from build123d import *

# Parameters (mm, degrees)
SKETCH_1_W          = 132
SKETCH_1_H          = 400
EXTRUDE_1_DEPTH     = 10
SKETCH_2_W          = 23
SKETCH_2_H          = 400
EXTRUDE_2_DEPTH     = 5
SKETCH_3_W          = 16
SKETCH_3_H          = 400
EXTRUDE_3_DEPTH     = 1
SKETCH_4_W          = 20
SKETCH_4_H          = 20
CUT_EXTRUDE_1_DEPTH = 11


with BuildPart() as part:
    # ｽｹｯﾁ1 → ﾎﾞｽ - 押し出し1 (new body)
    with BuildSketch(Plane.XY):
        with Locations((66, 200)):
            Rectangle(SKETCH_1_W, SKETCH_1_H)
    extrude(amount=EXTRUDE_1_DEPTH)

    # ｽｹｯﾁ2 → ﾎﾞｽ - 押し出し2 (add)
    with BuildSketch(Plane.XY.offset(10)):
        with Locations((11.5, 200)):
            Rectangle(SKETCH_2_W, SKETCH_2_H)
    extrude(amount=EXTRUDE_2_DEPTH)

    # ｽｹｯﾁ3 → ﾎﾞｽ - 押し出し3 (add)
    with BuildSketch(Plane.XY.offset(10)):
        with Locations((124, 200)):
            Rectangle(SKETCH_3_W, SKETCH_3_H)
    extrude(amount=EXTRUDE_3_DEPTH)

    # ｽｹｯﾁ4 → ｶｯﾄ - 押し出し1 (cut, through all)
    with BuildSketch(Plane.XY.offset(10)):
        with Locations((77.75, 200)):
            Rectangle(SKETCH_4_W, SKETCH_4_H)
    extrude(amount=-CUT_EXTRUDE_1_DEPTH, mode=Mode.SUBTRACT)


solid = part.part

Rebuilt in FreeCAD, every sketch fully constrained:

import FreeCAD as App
import Part
import Sketcher
from FreeCAD import Vector
Q = App.Units.Quantity

doc = App.newDocument("Part")
body = doc.addObject("PartDesign::Body", "Body")

# Sketch on XY plane
sketch1 = body.newObject("Sketcher::SketchObject", "Sketch")
sketch1.AttachmentSupport = (doc.getObject("XY_Plane"), [""])
sketch1.MapMode = "FlatFace"
sketch1.addGeometry(Part.LineSegment(Vector(0, 400, 0), Vector(0, 0, 0)), False)
sketch1.addGeometry(Part.LineSegment(Vector(0, 0, 0), Vector(132, 0, 0)), False)
sketch1.addGeometry(Part.LineSegment(Vector(132, 0, 0), Vector(132, 400, 0)), False)
sketch1.addGeometry(Part.LineSegment(Vector(132, 400, 0), Vector(0, 400, 0)), False)
sketch1.addConstraint(Sketcher.Constraint("Coincident", 0, 2, 1, 1))
sketch1.addConstraint(Sketcher.Constraint("Coincident", 1, 2, 2, 1))
sketch1.addConstraint(Sketcher.Constraint("Coincident", 2, 2, 3, 1))
sketch1.addConstraint(Sketcher.Constraint("Coincident", 3, 2, 0, 1))
sketch1.addConstraint(Sketcher.Constraint("Vertical", 0))
sketch1.addConstraint(Sketcher.Constraint("Horizontal", 1))
sketch1.addConstraint(Sketcher.Constraint("Vertical", 2))
sketch1.addConstraint(Sketcher.Constraint("Horizontal", 3))
sketch1.addConstraint(Sketcher.Constraint("Coincident", 0, 2, -1, 1))
sketch1.addConstraint(Sketcher.Constraint("DistanceX", 1, 1, 1, 2, Q("132 mm")))
sketch1.addConstraint(Sketcher.Constraint("DistanceY", 0, 2, 0, 1, Q("400 mm")))
pad1 = body.newObject("PartDesign::Pad", "Pad")
pad1.Profile = sketch1
pad1.Length = 10

# Sketch on XY plane
sketch2 = body.newObject("Sketcher::SketchObject", "Sketch001")
sketch2.AttachmentSupport = (doc.getObject("XY_Plane"), [""])
sketch2.MapMode = "FlatFace"
sketch2.AttachmentOffset = App.Placement(Vector(0, 0, 10), App.Rotation())
sketch2.addGeometry(Part.LineSegment(Vector(0, 400, 0), Vector(0, 0, 0)), False)
sketch2.addGeometry(Part.LineSegment(Vector(0, 0, 0), Vector(23, 0, 0)), False)
sketch2.addGeometry(Part.LineSegment(Vector(23, 0, 0), Vector(23, 400, 0)), False)
sketch2.addGeometry(Part.LineSegment(Vector(23, 400, 0), Vector(0, 400, 0)), False)
sketch2.addConstraint(Sketcher.Constraint("Coincident", 0, 2, 1, 1))
sketch2.addConstraint(Sketcher.Constraint("Coincident", 1, 2, 2, 1))
sketch2.addConstraint(Sketcher.Constraint("Coincident", 2, 2, 3, 1))
sketch2.addConstraint(Sketcher.Constraint("Coincident", 3, 2, 0, 1))
sketch2.addConstraint(Sketcher.Constraint("Vertical", 0))
sketch2.addConstraint(Sketcher.Constraint("Horizontal", 1))
sketch2.addConstraint(Sketcher.Constraint("Vertical", 2))
sketch2.addConstraint(Sketcher.Constraint("Horizontal", 3))
sketch2.addConstraint(Sketcher.Constraint("Coincident", 0, 2, -1, 1))
sketch2.addConstraint(Sketcher.Constraint("DistanceX", 1, 1, 1, 2, Q("23 mm")))
sketch2.addConstraint(Sketcher.Constraint("DistanceY", 0, 2, 0, 1, Q("400 mm")))
pad2 = body.newObject("PartDesign::Pad", "Pad001")
pad2.Profile = sketch2
pad2.Length = 5

# Sketch on XY plane
sketch3 = body.newObject("Sketcher::SketchObject", "Sketch002")
sketch3.AttachmentSupport = (doc.getObject("XY_Plane"), [""])
sketch3.MapMode = "FlatFace"
sketch3.AttachmentOffset = App.Placement(Vector(0, 0, 10), App.Rotation())
sketch3.addGeometry(Part.LineSegment(Vector(116, 400, 0), Vector(116, 0, 0)), False)
sketch3.addGeometry(Part.LineSegment(Vector(116, 0, 0), Vector(132, 0, 0)), False)
sketch3.addGeometry(Part.LineSegment(Vector(132, 0, 0), Vector(132, 400, 0)), False)
sketch3.addGeometry(Part.LineSegment(Vector(132, 400, 0), Vector(116, 400, 0)), False)
sketch3.addConstraint(Sketcher.Constraint("Coincident", 0, 2, 1, 1))
sketch3.addConstraint(Sketcher.Constraint("Coincident", 1, 2, 2, 1))
sketch3.addConstraint(Sketcher.Constraint("Coincident", 2, 2, 3, 1))
sketch3.addConstraint(Sketcher.Constraint("Coincident", 3, 2, 0, 1))
sketch3.addConstraint(Sketcher.Constraint("Vertical", 0))
sketch3.addConstraint(Sketcher.Constraint("Horizontal", 1))
sketch3.addConstraint(Sketcher.Constraint("Vertical", 2))
sketch3.addConstraint(Sketcher.Constraint("Horizontal", 3))
sketch3.addConstraint(Sketcher.Constraint("PointOnObject", 0, 2, -1))
sketch3.addConstraint(Sketcher.Constraint("DistanceX", 1, 1, 1, 2, Q("16 mm")))
sketch3.addConstraint(Sketcher.Constraint("DistanceY", 0, 2, 0, 1, Q("400 mm")))
sketch3.addConstraint(Sketcher.Constraint("DistanceX", -1, 1, 0, 2, Q("116 mm")))
pad3 = body.newObject("PartDesign::Pad", "Pad002")
pad3.Profile = sketch3
pad3.Length = 1

# Sketch on XY plane
sketch4 = body.newObject("Sketcher::SketchObject", "Sketch003")
sketch4.AttachmentSupport = (doc.getObject("XY_Plane"), [""])
sketch4.MapMode = "FlatFace"
sketch4.AttachmentOffset = App.Placement(Vector(0, 0, 10), App.Rotation())
sketch4.addGeometry(Part.LineSegment(Vector(67.75, 210, 0), Vector(67.75, 190, 0)), False)
sketch4.addGeometry(Part.LineSegment(Vector(67.75, 190, 0), Vector(87.75, 190, 0)), False)
sketch4.addGeometry(Part.LineSegment(Vector(87.75, 190, 0), Vector(87.75, 210, 0)), False)
sketch4.addGeometry(Part.LineSegment(Vector(87.75, 210, 0), Vector(67.75, 210, 0)), False)
sketch4.addConstraint(Sketcher.Constraint("Coincident", 0, 2, 1, 1))
sketch4.addConstraint(Sketcher.Constraint("Coincident", 1, 2, 2, 1))
sketch4.addConstraint(Sketcher.Constraint("Coincident", 2, 2, 3, 1))
sketch4.addConstraint(Sketcher.Constraint("Coincident", 3, 2, 0, 1))
sketch4.addConstraint(Sketcher.Constraint("Vertical", 0))
sketch4.addConstraint(Sketcher.Constraint("Horizontal", 1))
sketch4.addConstraint(Sketcher.Constraint("Vertical", 2))
sketch4.addConstraint(Sketcher.Constraint("Horizontal", 3))
sketch4.addConstraint(Sketcher.Constraint("Equal", 3, 0))
sketch4.addConstraint(Sketcher.Constraint("DistanceX", 1, 1, 1, 2, Q("20 mm")))
sketch4.addConstraint(Sketcher.Constraint("DistanceY", -1, 1, 0, 2, Q("190 mm")))
sketch4.addConstraint(Sketcher.Constraint("DistanceX", -1, 1, 0, 2, Q("67.75 mm")))
pocket1 = body.newObject("PartDesign::Pocket", "Pocket")
pocket1.Profile = sketch4
pocket1.Type = "ThroughAll"

doc.recompute()
